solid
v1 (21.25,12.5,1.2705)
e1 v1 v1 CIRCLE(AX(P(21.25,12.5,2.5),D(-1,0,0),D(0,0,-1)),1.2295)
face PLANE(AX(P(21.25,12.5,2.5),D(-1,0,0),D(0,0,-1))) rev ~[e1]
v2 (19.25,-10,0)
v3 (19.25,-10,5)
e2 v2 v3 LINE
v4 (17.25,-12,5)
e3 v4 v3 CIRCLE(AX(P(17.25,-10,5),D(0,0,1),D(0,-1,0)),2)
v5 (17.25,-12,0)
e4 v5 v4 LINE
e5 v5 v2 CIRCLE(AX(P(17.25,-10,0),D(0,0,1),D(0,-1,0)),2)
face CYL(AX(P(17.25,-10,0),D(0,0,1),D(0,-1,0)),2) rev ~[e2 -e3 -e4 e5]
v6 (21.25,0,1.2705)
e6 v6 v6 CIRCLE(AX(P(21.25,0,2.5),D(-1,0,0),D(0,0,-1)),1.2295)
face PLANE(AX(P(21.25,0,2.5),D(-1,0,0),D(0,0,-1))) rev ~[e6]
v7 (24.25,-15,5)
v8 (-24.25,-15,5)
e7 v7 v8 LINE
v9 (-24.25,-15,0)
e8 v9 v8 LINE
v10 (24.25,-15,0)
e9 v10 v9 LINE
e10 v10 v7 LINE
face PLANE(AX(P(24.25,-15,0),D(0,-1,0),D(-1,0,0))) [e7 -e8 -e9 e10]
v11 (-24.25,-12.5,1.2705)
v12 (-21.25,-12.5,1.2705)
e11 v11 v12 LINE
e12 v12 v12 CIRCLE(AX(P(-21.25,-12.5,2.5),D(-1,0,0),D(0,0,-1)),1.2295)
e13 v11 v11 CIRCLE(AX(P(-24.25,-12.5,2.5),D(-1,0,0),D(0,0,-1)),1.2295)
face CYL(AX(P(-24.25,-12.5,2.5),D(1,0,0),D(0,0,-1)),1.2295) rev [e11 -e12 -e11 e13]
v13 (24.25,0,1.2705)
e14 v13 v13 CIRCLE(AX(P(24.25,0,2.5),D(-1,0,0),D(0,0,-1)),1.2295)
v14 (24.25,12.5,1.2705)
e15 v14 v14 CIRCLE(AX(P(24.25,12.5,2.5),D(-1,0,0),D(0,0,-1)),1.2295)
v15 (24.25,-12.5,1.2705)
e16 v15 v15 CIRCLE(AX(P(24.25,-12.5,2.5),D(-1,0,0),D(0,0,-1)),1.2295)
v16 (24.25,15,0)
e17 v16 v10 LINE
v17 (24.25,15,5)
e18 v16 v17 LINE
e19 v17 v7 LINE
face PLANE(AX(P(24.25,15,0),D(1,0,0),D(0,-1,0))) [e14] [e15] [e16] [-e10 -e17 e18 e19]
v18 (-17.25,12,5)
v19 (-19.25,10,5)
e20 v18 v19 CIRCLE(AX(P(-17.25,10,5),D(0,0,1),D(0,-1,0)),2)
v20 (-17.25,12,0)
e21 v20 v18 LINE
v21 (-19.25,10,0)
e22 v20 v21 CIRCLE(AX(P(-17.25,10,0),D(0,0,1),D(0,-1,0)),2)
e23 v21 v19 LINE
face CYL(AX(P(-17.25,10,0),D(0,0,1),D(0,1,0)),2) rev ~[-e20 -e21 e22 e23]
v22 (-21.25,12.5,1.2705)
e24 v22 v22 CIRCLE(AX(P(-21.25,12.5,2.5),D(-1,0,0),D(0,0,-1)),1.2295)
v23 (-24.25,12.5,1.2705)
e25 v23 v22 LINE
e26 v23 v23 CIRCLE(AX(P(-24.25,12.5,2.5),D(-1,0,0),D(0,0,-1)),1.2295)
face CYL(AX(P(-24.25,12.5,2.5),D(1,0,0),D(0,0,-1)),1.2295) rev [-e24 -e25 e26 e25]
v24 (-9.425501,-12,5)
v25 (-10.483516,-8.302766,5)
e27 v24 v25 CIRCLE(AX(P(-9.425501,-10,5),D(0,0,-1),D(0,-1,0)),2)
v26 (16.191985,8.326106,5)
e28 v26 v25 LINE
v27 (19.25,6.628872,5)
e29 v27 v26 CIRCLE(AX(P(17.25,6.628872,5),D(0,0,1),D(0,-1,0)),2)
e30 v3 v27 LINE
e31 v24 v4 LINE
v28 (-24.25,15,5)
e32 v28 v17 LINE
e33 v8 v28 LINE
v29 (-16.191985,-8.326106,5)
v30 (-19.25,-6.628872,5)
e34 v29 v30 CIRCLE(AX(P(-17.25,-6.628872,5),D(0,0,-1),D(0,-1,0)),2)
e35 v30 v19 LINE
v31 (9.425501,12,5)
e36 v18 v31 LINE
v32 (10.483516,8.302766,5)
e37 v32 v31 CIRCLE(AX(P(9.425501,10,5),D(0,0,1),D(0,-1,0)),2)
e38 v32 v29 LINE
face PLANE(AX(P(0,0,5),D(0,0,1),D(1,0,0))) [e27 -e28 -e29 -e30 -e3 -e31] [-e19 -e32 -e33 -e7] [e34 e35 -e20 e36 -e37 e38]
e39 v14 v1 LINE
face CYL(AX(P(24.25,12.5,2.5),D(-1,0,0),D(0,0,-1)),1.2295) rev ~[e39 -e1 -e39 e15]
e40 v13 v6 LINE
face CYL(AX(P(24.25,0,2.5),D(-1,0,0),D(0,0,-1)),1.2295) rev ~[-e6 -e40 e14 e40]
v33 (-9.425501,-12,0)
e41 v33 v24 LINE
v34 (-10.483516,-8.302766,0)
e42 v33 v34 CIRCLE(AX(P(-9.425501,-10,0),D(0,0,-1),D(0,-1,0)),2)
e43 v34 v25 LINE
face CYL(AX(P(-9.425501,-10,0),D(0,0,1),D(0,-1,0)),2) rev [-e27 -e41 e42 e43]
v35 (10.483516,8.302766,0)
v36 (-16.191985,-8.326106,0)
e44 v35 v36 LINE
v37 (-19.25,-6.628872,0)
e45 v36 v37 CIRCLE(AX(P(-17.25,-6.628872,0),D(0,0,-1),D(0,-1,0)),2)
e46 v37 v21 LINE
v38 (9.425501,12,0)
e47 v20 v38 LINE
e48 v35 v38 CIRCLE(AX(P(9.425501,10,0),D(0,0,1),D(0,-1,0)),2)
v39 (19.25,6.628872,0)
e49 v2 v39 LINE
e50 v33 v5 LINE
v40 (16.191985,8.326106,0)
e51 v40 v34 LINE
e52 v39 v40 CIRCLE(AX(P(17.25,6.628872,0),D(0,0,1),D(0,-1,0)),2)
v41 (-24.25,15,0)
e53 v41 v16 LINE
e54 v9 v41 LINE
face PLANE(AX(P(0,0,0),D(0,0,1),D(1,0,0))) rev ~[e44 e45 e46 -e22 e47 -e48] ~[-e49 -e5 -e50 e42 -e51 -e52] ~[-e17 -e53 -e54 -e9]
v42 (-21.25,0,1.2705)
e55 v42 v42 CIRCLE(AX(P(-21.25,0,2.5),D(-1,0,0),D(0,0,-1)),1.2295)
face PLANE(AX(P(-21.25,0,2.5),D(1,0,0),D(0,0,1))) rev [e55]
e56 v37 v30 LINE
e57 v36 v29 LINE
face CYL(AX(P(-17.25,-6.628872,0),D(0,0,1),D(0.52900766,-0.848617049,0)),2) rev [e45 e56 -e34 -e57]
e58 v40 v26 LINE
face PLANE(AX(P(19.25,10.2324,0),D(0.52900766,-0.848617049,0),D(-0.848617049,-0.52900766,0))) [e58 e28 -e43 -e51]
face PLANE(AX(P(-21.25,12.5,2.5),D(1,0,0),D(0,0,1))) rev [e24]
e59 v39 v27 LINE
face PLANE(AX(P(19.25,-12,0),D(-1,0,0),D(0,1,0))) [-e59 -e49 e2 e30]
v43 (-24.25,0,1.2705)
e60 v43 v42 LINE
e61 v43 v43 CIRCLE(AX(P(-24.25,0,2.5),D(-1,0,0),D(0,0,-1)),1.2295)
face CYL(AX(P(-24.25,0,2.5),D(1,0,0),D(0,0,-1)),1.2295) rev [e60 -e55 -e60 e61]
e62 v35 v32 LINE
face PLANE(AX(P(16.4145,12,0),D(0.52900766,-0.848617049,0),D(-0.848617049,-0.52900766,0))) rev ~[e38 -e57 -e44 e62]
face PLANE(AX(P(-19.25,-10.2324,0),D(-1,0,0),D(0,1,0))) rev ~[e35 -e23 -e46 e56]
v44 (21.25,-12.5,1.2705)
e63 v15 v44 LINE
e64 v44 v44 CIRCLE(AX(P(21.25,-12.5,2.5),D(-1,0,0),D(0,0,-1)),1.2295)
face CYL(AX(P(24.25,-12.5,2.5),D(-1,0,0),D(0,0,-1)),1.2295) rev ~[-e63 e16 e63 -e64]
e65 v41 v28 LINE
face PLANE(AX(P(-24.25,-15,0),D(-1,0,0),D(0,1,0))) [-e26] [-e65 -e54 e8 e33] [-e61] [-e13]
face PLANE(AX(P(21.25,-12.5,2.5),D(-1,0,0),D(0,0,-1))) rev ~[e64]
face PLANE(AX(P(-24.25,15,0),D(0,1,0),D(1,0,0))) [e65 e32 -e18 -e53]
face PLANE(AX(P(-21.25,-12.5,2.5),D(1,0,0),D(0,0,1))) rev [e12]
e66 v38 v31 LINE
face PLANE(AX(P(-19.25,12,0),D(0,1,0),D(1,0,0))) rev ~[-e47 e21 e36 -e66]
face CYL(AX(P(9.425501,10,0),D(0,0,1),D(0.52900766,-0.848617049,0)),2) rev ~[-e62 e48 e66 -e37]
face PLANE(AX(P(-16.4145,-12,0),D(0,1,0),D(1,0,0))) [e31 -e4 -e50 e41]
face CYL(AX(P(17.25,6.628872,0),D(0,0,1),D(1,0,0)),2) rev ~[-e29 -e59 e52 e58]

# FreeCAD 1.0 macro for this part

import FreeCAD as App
import Part
import Sketcher

V = App.Vector


def edges_at(feature, points):
    """Names of the edges that pass closest to the given points."""
    edges = feature.Shape.Edges
    near = lambda p: min(range(len(edges)), key=lambda i: edges[i].distToShape(Part.Vertex(*p))[0])
    return sorted({f"Edge{near(p) + 1}" for p in points})


def add_polygon(sketch, points):
    """Adds a closed chain of lines whose ends are joined by coincident constraints."""
    first, n = sketch.GeometryCount, len(points)
    for a, b in zip(points, points[1:] + points[:1]):
        sketch.addGeometry(Part.LineSegment(App.Vector(*a, 0), App.Vector(*b, 0)), False)
    for i in range(n):
        sketch.addConstraint(Sketcher.Constraint("Coincident", first + i, 2, first + (i + 1) % n, 1))

doc = App.newDocument("Part")
body = doc.addObject("PartDesign::Body", "Body")

# Sketch on XY plane
sketch1 = doc.addObject("Sketcher::SketchObject", "Sketch")
body.addObject(sketch1)
sketch1.AttachmentSupport = (doc.XY_Plane, [""])
sketch1.MapMode = "FlatFace"
add_polygon(sketch1, [(24, 15), (-24, 15), (-24, -15), (24, -15)])  # lines 0-3
add_polygon(sketch1, [(19, -12), (-16, -12), (19, 10)])  # lines 4-6
add_polygon(sketch1, [(16, 12), (-19, -10), (-19, 12)])  # lines 7-9
sketch1.addConstraint(Sketcher.Constraint("Horizontal", 0))
sketch1.addConstraint(Sketcher.Constraint("Vertical", 1))
sketch1.addConstraint(Sketcher.Constraint("Horizontal", 2))
sketch1.addConstraint(Sketcher.Constraint("Vertical", 3))
sketch1.addConstraint(Sketcher.Constraint("Horizontal", 4))
sketch1.addConstraint(Sketcher.Constraint("Vertical", 6))
sketch1.addConstraint(Sketcher.Constraint("Vertical", 8))
sketch1.addConstraint(Sketcher.Constraint("Horizontal", 9))
sketch1.addConstraint(Sketcher.Constraint("Symmetric", 0, 2, 2, 2, -1, 1))
sketch1.addConstraint(Sketcher.Constraint("Symmetric", 5, 2, 7, 2, -1, 1))
sketch1.addConstraint(Sketcher.Constraint("Symmetric", 4, 2, 9, 2, -1, 1))
sketch1.addConstraint(Sketcher.Constraint("DistanceX", 0, 2, 0, 1, 48.5))
sketch1.addConstraint(Sketcher.Constraint("DistanceY", 1, 2, 4, 2, 3.0))
sketch1.addConstraint(Sketcher.Constraint("DistanceX", 5, 2, 3, 2, 5.0))
sketch1.addConstraint(Sketcher.Constraint("DistanceY", 1, 2, 1, 1, 30.0))
sketch1.addConstraint(Sketcher.Constraint("DistanceX", 4, 2, 4, 1, 35.6645))
sketch1.addConstraint(Sketcher.Constraint("DistanceY", 6, 2, 6, 1, 22.2324))
pad1 = doc.addObject("PartDesign::Pad", "Pad")
body.addObject(pad1)
pad1.Profile = sketch1
pad1.Length = 5

# Sketch on YZ plane
sketch2 = doc.addObject("Sketcher::SketchObject", "Sketch001")
body.addObject(sketch2)
sketch2.AttachmentSupport = (doc.YZ_Plane, [""])
sketch2.MapMode = "FlatFace"
sketch2.AttachmentOffset = App.Placement(V(0, 0, 24.25), App.Rotation())
sketch2.addGeometry(Part.Circle(V(-12.5, 2.5, 0), V(0, 0, 1), 1.2), False)
sketch2.addGeometry(Part.Circle(V(0, 2.5, 0), V(0, 0, 1), 1.2), False)
sketch2.addGeometry(Part.Circle(V(12.5, 2.5, 0), V(0, 0, 1), 1.2), False)
sketch2.addConstraint(Sketcher.Constraint("Equal", 0, 1))
sketch2.addConstraint(Sketcher.Constraint("Equal", 1, 2))
sketch2.addConstraint(Sketcher.Constraint("Symmetric", 0, 3, 2, 3, -2))
sketch2.addConstraint(Sketcher.Constraint("PointOnObject", 1, 3, -2))
sketch2.addConstraint(Sketcher.Constraint("Horizontal", 0, 3, 1, 3))
sketch2.addConstraint(Sketcher.Constraint("Diameter", 0, 2.459))
sketch2.addConstraint(Sketcher.Constraint("DistanceX", 0, 3, 2, 3, 25.0))
sketch2.addConstraint(Sketcher.Constraint("DistanceY", -1, 1, 0, 3, 2.5))
doc.recompute()
hole = doc.addObject("PartDesign::Hole", "Hole")
body.addObject(hole)
hole.Profile = sketch2
hole.ThreadType = "None"
hole.Diameter = 2.459
hole.DepthType = "Dimension"
hole.Depth = 3
hole.DrillPoint = "Flat"
doc.recompute()

mirrored = doc.addObject("PartDesign::Mirrored", "Mirrored")
body.addObject(mirrored)
mirrored.Originals = [hole]
mirrored.MirrorPlane = (doc.YZ_Plane, [""])
body.Tip = mirrored
doc.recompute()

fillet = doc.addObject("PartDesign::Fillet", "Fillet")
body.addObject(fillet)
fillet.Base = (mirrored, edges_at(mirrored, [
    (-16.415, -12, 2.5),
    (-19.25, -10.232, 2.5),
    (19.25, 10.232, 2.5),
    (19.25, -12, 2.5),
    (-19.25, 12, 2.5),
    (16.415, 12, 2.5),
]))
fillet.Radius = 2

doc.recompute()
